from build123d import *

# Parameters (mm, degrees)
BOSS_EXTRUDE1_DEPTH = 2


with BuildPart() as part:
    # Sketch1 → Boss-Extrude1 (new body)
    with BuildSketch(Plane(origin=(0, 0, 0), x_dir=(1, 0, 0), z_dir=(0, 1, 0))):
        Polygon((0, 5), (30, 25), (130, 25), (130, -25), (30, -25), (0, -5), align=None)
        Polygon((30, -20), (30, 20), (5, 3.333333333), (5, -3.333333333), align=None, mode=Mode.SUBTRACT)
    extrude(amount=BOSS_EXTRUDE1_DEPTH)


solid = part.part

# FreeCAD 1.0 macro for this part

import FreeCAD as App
import Part
import Sketcher

V = App.Vector
Q = App.Units.Quantity


def add_polygon(sketch, points):
    """Adds a closed chain of lines whose ends are joined by coincident constraints."""
    first, n = sketch.GeometryCount, len(points)
    for a, b in zip(points, points[1:] + points[:1]):
        sketch.addGeometry(Part.LineSegment(App.Vector(*a, 0), App.Vector(*b, 0)), False)
    for i in range(n):
        sketch.addConstraint(Sketcher.Constraint("Coincident", first + i, 2, first + (i + 1) % n, 1))

doc = App.newDocument("Part")
body = doc.addObject("PartDesign::Body", "Body")

# Sketch on XZ plane
sketch1 = body.newObject("Sketcher::SketchObject", "Sketch")
sketch1.AttachmentSupport = (doc.getObject("XZ_Plane"), [""])
sketch1.MapMode = "FlatFace"
add_polygon(sketch1, [(30, -25), (0, -5), (0, 5), (30, 25), (130, 25), (130, -25)])  # lines 0-5
add_polygon(sketch1, [(30, 20), (5, 3), (5, -3), (30, -20)])  # lines 6-9
sketch1.addConstraint([
    Sketcher.Constraint("Vertical", 1),
    Sketcher.Constraint("Horizontal", 3),
    Sketcher.Constraint("Vertical", 4),
    Sketcher.Constraint("Horizontal", 5),
    Sketcher.Constraint("Vertical", 7),
    Sketcher.Constraint("Vertical", 9),
    Sketcher.Constraint("Symmetric", 0, 2, 1, 2, -1, 1),
    Sketcher.Constraint("Symmetric", 2, 2, 5, 2, -1),
    Sketcher.Constraint("Parallel", 2, 6),
    Sketcher.Constraint("Parallel", 0, 8),
    Sketcher.Constraint("Vertical", 5, 2, 8, 2),
    Sketcher.Constraint("DistanceX", 3, 1, 3, 2, Q("100 mm")),
    Sketcher.Constraint("DistanceY", 1, 1, 1, 2, Q("10 mm")),
    Sketcher.Constraint("DistanceY", 4, 2, 4, 1, Q("50 mm")),
    Sketcher.Constraint("DistanceY", 9, 1, 9, 2, Q("40 mm")),
    Sketcher.Constraint("DistanceX", -1, 1, 2, 2, Q("30 mm")),
    Sketcher.Constraint("DistanceX", -1, 1, 6, 2, Q("5 mm")),
    Sketcher.Constraint("DistanceY", 8, 2, -1, 1, Q("20 mm")),
])
pad1 = body.newObject("PartDesign::Pad", "Pad")
pad1.Profile = sketch1
pad1.Length = 2
pad1.Reversed = True

doc.recompute()
